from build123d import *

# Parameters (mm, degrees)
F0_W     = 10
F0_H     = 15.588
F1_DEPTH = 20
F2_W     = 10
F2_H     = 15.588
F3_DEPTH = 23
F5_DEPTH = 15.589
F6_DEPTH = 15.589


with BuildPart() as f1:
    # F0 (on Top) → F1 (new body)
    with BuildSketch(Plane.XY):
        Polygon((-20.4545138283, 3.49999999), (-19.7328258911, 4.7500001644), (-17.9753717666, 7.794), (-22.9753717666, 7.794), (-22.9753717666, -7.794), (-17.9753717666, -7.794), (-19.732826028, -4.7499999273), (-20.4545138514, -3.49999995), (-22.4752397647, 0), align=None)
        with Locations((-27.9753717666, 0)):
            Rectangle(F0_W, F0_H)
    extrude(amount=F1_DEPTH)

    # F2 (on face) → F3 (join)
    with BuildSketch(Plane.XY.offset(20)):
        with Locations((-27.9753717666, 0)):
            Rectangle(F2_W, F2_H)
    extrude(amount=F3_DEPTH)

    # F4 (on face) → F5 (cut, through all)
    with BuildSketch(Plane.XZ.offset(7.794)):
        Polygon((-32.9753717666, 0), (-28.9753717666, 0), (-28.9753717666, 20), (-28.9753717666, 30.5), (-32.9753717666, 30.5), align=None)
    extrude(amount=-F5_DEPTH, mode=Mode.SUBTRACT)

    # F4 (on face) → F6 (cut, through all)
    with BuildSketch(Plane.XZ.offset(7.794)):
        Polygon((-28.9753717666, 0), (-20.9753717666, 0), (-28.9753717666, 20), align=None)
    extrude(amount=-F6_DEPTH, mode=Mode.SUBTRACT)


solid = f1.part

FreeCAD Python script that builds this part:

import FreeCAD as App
import Part
import Sketcher
Q = App.Units.Quantity

doc = App.newDocument("Part")
body = doc.addObject("PartDesign::Body", "Body")

# Sketch on XY plane
sketch1 = body.newObject("Sketcher::SketchObject", "Sketch")
sketch1.AttachmentSupport = (doc.getObject("XY_Plane"), [""])
sketch1.MapMode = "FlatFace"
sketch1.addGeometry(Part.LineSegment(App.Vector(-20.5, 3.5, 0), App.Vector(-19.7, 4.8, 0)), False)
sketch1.addGeometry(Part.LineSegment(App.Vector(-19.7, 4.8, 0), App.Vector(-18, 7.8, 0)), False)
sketch1.addGeometry(Part.LineSegment(App.Vector(-18, 7.8, 0), App.Vector(-33, 7.8, 0)), False)
sketch1.addGeometry(Part.LineSegment(App.Vector(-33, 7.8, 0), App.Vector(-33, -7.8, 0)), False)
sketch1.addGeometry(Part.LineSegment(App.Vector(-33, -7.8, 0), App.Vector(-18, -7.8, 0)), False)
sketch1.addGeometry(Part.LineSegment(App.Vector(-18, -7.8, 0), App.Vector(-19.7, -4.7, 0)), False)
sketch1.addGeometry(Part.LineSegment(App.Vector(-19.7, -4.7, 0), App.Vector(-20.5, -3.5, 0)), False)
sketch1.addGeometry(Part.LineSegment(App.Vector(-20.5, -3.5, 0), App.Vector(-22.5, 0, 0)), False)
sketch1.addGeometry(Part.LineSegment(App.Vector(-22.5, 0, 0), App.Vector(-20.5, 3.5, 0)), False)
sketch1.addConstraint(Sketcher.Constraint("Coincident", 0, 2, 1, 1))
sketch1.addConstraint(Sketcher.Constraint("Coincident", 1, 2, 2, 1))
sketch1.addConstraint(Sketcher.Constraint("Coincident", 2, 2, 3, 1))
sketch1.addConstraint(Sketcher.Constraint("Coincident", 3, 2, 4, 1))
sketch1.addConstraint(Sketcher.Constraint("Coincident", 4, 2, 5, 1))
sketch1.addConstraint(Sketcher.Constraint("Coincident", 5, 2, 6, 1))
sketch1.addConstraint(Sketcher.Constraint("Coincident", 6, 2, 7, 1))
sketch1.addConstraint(Sketcher.Constraint("Coincident", 7, 2, 8, 1))
sketch1.addConstraint(Sketcher.Constraint("Coincident", 8, 2, 0, 1))
sketch1.addConstraint(Sketcher.Constraint("Horizontal", 2))
sketch1.addConstraint(Sketcher.Constraint("Vertical", 3))
sketch1.addConstraint(Sketcher.Constraint("Horizontal", 4))
sketch1.addConstraint(Sketcher.Constraint("Symmetric", 1, 2, 4, 2, -1))
sketch1.addConstraint(Sketcher.Constraint("Symmetric", 0, 2, 5, 2, -1))
sketch1.addConstraint(Sketcher.Constraint("Symmetric", 6, 2, 8, 2, -1))
sketch1.addConstraint(Sketcher.Constraint("PointOnObject", 7, 2, -1))
sketch1.addConstraint(Sketcher.Constraint("Parallel", 0, 1))
sketch1.addConstraint(Sketcher.Constraint("Parallel", 6, 7))
sketch1.addConstraint(Sketcher.Constraint("DistanceX", 2, 2, 2, 1, Q("15 mm")))
sketch1.addConstraint(Sketcher.Constraint("Angle", 0, Q("60 deg")))
sketch1.addConstraint(Sketcher.Constraint("DistanceY", 6, 2, 8, 2, Q("7 mm")))
sketch1.addConstraint(Sketcher.Constraint("DistanceY", 5, 2, 0, 2, Q("9.5 mm")))
sketch1.addConstraint(Sketcher.Constraint("DistanceY", 3, 2, 3, 1, Q("15.588 mm")))
sketch1.addConstraint(Sketcher.Constraint("DistanceX", 1, 2, -1, 1, Q("17.975372 mm")))
pad1 = body.newObject("PartDesign::Pad", "Pad")
pad1.Profile = sketch1
pad1.Length = 20

# Sketch on XY plane
sketch2 = body.newObject("Sketcher::SketchObject", "Sketch001")
sketch2.AttachmentSupport = (doc.getObject("XY_Plane"), [""])
sketch2.MapMode = "FlatFace"
sketch2.AttachmentOffset = App.Placement(App.Vector(0, 0, 20), App.Rotation())
sketch2.addGeometry(Part.LineSegment(App.Vector(-33, 8, 0), App.Vector(-33, -8, 0)), False)
sketch2.addGeometry(Part.LineSegment(App.Vector(-33, -8, 0), App.Vector(-23, -8, 0)), False)
sketch2.addGeometry(Part.LineSegment(App.Vector(-23, -8, 0), App.Vector(-23, 8, 0)), False)
sketch2.addGeometry(Part.LineSegment(App.Vector(-23, 8, 0), App.Vector(-33, 8, 0)), False)
sketch2.addConstraint(Sketcher.Constraint("Coincident", 0, 2, 1, 1))
sketch2.addConstraint(Sketcher.Constraint("Coincident", 1, 2, 2, 1))
sketch2.addConstraint(Sketcher.Constraint("Coincident", 2, 2, 3, 1))
sketch2.addConstraint(Sketcher.Constraint("Coincident", 3, 2, 0, 1))
sketch2.addConstraint(Sketcher.Constraint("Vertical", 0))
sketch2.addConstraint(Sketcher.Constraint("Horizontal", 1))
sketch2.addConstraint(Sketcher.Constraint("Vertical", 2))
sketch2.addConstraint(Sketcher.Constraint("Horizontal", 3))
sketch2.addConstraint(Sketcher.Constraint("DistanceX", 1, 1, 1, 2, Q("10 mm")))
sketch2.addConstraint(Sketcher.Constraint("DistanceY", 0, 2, 0, 1, Q("15.588 mm")))
sketch2.addConstraint(Sketcher.Constraint("DistanceY", 0, 2, -1, 1, Q("7.794 mm")))
sketch2.addConstraint(Sketcher.Constraint("DistanceX", 0, 2, -1, 1, Q("32.975372 mm")))
pad2 = body.newObject("PartDesign::Pad", "Pad001")
pad2.Profile = sketch2
pad2.Length = 23

# Sketch on XZ plane
sketch3 = body.newObject("Sketcher::SketchObject", "Sketch002")
sketch3.AttachmentSupport = (doc.getObject("XZ_Plane"), [""])
sketch3.MapMode = "FlatFace"
sketch3.AttachmentOffset = App.Placement(App.Vector(0, 0, 7.794), App.Rotation())
sketch3.addGeometry(Part.LineSegment(App.Vector(-33, 0, 0), App.Vector(-29, 0, 0)), False)
sketch3.addGeometry(Part.LineSegment(App.Vector(-29, 0, 0), App.Vector(-29, 30.5, 0)), False)
sketch3.addGeometry(Part.LineSegment(App.Vector(-29, 30.5, 0), App.Vector(-33, 30.5, 0)), False)
sketch3.addGeometry(Part.LineSegment(App.Vector(-33, 30.5, 0), App.Vector(-33, 0, 0)), False)
sketch3.addConstraint(Sketcher.Constraint("Coincident", 0, 2, 1, 1))
sketch3.addConstraint(Sketcher.Constraint("Coincident", 1, 2, 2, 1))
sketch3.addConstraint(Sketcher.Constraint("Coincident", 2, 2, 3, 1))
sketch3.addConstraint(Sketcher.Constraint("Coincident", 3, 2, 0, 1))
sketch3.addConstraint(Sketcher.Constraint("Horizontal", 0))
sketch3.addConstraint(Sketcher.Constraint("Vertical", 1))
sketch3.addConstraint(Sketcher.Constraint("Horizontal", 2))
sketch3.addConstraint(Sketcher.Constraint("Vertical", 3))
sketch3.addConstraint(Sketcher.Constraint("PointOnObject", 0, 2, -1))
sketch3.addConstraint(Sketcher.Constraint("DistanceX", 0, 1, 0, 2, Q("4 mm")))
sketch3.addConstraint(Sketcher.Constraint("DistanceY", 1, 1, 1, 2, Q("30.5 mm")))
sketch3.addConstraint(Sketcher.Constraint("DistanceX", 0, 2, -1, 1, Q("28.975372 mm")))
pocket1 = body.newObject("PartDesign::Pocket", "Pocket")
pocket1.Profile = sketch3
pocket1.Type = "ThroughAll"

# Sketch on XZ plane
sketch4 = body.newObject("Sketcher::SketchObject", "Sketch003")
sketch4.AttachmentSupport = (doc.getObject("XZ_Plane"), [""])
sketch4.MapMode = "FlatFace"
sketch4.AttachmentOffset = App.Placement(App.Vector(0, 0, 7.794), App.Rotation())
sketch4.addGeometry(Part.LineSegment(App.Vector(-29, 0, 0), App.Vector(-21, 0, 0)), False)
sketch4.addGeometry(Part.LineSegment(App.Vector(-21, 0, 0), App.Vector(-29, 20, 0)), False)
sketch4.addGeometry(Part.LineSegment(App.Vector(-29, 20, 0), App.Vector(-29, 0, 0)), False)
sketch4.addConstraint(Sketcher.Constraint("Coincident", 0, 2, 1, 1))
sketch4.addConstraint(Sketcher.Constraint("Coincident", 1, 2, 2, 1))
sketch4.addConstraint(Sketcher.Constraint("Coincident", 2, 2, 0, 1))
sketch4.addConstraint(Sketcher.Constraint("Horizontal", 0))
sketch4.addConstraint(Sketcher.Constraint("Vertical", 2))
sketch4.addConstraint(Sketcher.Constraint("PointOnObject", 0, 2, -1))
sketch4.addConstraint(Sketcher.Constraint("DistanceX", 0, 1, 0, 2, Q("8 mm")))
sketch4.addConstraint(Sketcher.Constraint("DistanceY", 2, 2, 2, 1, Q("20 mm")))
sketch4.addConstraint(Sketcher.Constraint("DistanceX", 0, 2, -1, 1, Q("20.975372 mm")))
pocket2 = body.newObject("PartDesign::Pocket", "Pocket001")
pocket2.Profile = sketch4
pocket2.Type = "ThroughAll"

doc.recompute()
